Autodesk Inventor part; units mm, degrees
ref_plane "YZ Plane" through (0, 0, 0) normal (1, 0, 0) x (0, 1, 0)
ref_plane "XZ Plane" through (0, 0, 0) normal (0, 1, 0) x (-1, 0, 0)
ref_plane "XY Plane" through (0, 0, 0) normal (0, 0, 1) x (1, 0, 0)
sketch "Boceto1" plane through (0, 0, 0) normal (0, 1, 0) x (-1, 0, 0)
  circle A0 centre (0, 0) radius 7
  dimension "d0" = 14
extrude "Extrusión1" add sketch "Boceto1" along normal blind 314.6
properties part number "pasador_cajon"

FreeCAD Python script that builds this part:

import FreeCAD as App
import Part
import Sketcher
from FreeCAD import Vector
Q = App.Units.Quantity

doc = App.newDocument("Part")
body = doc.addObject("PartDesign::Body", "Body")

sketch1 = doc.addObject("Sketcher::SketchObject", "Sketch")
body.addObject(sketch1)
sketch1.AttachmentSupport = (doc.XZ_Plane, [""])
sketch1.MapMode = "FlatFace"
sketch1.addGeometry(Part.Circle(Vector(0, 0, 0), Vector(0, 0, 1), 7), False)
sketch1.addConstraint(Sketcher.Constraint("Coincident", 0, 3, -1, 1))
sketch1.addConstraint(Sketcher.Constraint("Diameter", 0, Q("14 mm")))
pad1 = doc.addObject("PartDesign::Pad", "Pad")
body.addObject(pad1)
pad1.Profile = sketch1
pad1.Length = 314.6
pad1.Reversed = True

doc.recompute()
